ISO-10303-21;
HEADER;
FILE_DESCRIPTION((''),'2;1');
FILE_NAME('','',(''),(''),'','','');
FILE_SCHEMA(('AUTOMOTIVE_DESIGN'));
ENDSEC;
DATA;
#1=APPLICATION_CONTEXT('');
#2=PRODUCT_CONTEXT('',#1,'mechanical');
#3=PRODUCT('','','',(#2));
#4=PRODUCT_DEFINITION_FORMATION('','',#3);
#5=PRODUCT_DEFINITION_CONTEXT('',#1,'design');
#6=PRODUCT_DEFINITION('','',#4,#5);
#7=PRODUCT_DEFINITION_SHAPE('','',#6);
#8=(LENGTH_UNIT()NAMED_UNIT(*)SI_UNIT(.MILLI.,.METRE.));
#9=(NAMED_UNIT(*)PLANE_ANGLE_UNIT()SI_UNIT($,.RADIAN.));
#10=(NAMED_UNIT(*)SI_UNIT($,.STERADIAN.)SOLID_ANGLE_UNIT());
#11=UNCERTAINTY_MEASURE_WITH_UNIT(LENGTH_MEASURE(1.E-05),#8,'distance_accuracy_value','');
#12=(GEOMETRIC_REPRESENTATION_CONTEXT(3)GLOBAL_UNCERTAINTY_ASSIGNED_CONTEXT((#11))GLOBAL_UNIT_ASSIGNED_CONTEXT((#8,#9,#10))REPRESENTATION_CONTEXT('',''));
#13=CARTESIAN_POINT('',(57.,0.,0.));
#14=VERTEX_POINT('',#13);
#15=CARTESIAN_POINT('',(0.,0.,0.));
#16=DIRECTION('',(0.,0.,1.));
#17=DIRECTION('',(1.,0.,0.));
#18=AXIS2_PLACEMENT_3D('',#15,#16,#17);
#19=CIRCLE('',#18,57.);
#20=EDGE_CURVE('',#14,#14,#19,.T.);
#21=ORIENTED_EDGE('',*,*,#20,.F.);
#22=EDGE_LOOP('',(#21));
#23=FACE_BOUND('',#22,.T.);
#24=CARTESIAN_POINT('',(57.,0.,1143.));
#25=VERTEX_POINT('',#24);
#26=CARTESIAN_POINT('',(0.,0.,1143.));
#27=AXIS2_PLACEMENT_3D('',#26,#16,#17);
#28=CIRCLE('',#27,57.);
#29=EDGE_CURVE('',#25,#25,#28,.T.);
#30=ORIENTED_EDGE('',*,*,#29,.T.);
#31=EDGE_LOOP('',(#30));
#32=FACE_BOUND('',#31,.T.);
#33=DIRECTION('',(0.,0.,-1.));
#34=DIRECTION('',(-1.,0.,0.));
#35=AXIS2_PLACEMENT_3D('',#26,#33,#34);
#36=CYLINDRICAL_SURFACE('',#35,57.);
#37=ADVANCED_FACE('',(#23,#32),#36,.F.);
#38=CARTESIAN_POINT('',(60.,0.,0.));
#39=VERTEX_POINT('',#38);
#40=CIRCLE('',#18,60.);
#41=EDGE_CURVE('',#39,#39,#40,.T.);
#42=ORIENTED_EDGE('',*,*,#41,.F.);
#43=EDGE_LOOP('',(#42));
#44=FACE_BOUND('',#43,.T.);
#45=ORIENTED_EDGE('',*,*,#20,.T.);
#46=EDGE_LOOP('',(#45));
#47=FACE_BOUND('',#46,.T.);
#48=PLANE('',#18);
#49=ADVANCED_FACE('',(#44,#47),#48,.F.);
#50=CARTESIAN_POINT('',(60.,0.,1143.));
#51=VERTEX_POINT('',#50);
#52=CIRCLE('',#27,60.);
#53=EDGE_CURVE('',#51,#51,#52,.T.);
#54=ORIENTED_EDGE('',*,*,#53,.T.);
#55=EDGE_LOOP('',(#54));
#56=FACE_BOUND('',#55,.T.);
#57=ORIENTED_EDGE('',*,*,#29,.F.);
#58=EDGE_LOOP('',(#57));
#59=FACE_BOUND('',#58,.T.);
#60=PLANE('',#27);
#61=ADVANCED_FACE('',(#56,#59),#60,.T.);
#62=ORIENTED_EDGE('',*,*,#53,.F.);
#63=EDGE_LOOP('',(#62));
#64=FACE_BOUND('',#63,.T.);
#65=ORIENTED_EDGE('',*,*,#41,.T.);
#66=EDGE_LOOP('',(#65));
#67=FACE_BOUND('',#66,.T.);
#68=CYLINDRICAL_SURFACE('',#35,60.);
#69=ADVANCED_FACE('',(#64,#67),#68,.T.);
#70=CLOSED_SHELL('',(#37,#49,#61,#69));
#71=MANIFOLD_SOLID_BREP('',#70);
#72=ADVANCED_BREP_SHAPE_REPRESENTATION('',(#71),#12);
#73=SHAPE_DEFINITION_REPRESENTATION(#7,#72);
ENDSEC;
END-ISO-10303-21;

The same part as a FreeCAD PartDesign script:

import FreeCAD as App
import Part
import Sketcher

doc = App.newDocument("Part")
body = doc.addObject("PartDesign::Body", "Body")

# Sketch on XY plane
sketch1 = doc.addObject("Sketcher::SketchObject", "Sketch")
body.addObject(sketch1)
sketch1.AttachmentSupport = (doc.XY_Plane, [""])
sketch1.MapMode = "FlatFace"
sketch1.addGeometry([
    Part.Circle(App.Vector(0, 0, 0), App.Vector(0, 0, 1), 60),
    Part.Circle(App.Vector(0, 0, 0), App.Vector(0, 0, 1), 57),
], False)
sketch1.addConstraint([
    Sketcher.Constraint("Coincident", 0, 3, -1, 1),
    Sketcher.Constraint("Coincident", 1, 3, -1, 1),
    Sketcher.Constraint("Diameter", 0, 120.0),
    Sketcher.Constraint("Diameter", 1, 114.0),
])
pad1 = doc.addObject("PartDesign::Pad", "Pad")
body.addObject(pad1)
pad1.Profile = sketch1
pad1.Length = 1143

doc.recompute()
